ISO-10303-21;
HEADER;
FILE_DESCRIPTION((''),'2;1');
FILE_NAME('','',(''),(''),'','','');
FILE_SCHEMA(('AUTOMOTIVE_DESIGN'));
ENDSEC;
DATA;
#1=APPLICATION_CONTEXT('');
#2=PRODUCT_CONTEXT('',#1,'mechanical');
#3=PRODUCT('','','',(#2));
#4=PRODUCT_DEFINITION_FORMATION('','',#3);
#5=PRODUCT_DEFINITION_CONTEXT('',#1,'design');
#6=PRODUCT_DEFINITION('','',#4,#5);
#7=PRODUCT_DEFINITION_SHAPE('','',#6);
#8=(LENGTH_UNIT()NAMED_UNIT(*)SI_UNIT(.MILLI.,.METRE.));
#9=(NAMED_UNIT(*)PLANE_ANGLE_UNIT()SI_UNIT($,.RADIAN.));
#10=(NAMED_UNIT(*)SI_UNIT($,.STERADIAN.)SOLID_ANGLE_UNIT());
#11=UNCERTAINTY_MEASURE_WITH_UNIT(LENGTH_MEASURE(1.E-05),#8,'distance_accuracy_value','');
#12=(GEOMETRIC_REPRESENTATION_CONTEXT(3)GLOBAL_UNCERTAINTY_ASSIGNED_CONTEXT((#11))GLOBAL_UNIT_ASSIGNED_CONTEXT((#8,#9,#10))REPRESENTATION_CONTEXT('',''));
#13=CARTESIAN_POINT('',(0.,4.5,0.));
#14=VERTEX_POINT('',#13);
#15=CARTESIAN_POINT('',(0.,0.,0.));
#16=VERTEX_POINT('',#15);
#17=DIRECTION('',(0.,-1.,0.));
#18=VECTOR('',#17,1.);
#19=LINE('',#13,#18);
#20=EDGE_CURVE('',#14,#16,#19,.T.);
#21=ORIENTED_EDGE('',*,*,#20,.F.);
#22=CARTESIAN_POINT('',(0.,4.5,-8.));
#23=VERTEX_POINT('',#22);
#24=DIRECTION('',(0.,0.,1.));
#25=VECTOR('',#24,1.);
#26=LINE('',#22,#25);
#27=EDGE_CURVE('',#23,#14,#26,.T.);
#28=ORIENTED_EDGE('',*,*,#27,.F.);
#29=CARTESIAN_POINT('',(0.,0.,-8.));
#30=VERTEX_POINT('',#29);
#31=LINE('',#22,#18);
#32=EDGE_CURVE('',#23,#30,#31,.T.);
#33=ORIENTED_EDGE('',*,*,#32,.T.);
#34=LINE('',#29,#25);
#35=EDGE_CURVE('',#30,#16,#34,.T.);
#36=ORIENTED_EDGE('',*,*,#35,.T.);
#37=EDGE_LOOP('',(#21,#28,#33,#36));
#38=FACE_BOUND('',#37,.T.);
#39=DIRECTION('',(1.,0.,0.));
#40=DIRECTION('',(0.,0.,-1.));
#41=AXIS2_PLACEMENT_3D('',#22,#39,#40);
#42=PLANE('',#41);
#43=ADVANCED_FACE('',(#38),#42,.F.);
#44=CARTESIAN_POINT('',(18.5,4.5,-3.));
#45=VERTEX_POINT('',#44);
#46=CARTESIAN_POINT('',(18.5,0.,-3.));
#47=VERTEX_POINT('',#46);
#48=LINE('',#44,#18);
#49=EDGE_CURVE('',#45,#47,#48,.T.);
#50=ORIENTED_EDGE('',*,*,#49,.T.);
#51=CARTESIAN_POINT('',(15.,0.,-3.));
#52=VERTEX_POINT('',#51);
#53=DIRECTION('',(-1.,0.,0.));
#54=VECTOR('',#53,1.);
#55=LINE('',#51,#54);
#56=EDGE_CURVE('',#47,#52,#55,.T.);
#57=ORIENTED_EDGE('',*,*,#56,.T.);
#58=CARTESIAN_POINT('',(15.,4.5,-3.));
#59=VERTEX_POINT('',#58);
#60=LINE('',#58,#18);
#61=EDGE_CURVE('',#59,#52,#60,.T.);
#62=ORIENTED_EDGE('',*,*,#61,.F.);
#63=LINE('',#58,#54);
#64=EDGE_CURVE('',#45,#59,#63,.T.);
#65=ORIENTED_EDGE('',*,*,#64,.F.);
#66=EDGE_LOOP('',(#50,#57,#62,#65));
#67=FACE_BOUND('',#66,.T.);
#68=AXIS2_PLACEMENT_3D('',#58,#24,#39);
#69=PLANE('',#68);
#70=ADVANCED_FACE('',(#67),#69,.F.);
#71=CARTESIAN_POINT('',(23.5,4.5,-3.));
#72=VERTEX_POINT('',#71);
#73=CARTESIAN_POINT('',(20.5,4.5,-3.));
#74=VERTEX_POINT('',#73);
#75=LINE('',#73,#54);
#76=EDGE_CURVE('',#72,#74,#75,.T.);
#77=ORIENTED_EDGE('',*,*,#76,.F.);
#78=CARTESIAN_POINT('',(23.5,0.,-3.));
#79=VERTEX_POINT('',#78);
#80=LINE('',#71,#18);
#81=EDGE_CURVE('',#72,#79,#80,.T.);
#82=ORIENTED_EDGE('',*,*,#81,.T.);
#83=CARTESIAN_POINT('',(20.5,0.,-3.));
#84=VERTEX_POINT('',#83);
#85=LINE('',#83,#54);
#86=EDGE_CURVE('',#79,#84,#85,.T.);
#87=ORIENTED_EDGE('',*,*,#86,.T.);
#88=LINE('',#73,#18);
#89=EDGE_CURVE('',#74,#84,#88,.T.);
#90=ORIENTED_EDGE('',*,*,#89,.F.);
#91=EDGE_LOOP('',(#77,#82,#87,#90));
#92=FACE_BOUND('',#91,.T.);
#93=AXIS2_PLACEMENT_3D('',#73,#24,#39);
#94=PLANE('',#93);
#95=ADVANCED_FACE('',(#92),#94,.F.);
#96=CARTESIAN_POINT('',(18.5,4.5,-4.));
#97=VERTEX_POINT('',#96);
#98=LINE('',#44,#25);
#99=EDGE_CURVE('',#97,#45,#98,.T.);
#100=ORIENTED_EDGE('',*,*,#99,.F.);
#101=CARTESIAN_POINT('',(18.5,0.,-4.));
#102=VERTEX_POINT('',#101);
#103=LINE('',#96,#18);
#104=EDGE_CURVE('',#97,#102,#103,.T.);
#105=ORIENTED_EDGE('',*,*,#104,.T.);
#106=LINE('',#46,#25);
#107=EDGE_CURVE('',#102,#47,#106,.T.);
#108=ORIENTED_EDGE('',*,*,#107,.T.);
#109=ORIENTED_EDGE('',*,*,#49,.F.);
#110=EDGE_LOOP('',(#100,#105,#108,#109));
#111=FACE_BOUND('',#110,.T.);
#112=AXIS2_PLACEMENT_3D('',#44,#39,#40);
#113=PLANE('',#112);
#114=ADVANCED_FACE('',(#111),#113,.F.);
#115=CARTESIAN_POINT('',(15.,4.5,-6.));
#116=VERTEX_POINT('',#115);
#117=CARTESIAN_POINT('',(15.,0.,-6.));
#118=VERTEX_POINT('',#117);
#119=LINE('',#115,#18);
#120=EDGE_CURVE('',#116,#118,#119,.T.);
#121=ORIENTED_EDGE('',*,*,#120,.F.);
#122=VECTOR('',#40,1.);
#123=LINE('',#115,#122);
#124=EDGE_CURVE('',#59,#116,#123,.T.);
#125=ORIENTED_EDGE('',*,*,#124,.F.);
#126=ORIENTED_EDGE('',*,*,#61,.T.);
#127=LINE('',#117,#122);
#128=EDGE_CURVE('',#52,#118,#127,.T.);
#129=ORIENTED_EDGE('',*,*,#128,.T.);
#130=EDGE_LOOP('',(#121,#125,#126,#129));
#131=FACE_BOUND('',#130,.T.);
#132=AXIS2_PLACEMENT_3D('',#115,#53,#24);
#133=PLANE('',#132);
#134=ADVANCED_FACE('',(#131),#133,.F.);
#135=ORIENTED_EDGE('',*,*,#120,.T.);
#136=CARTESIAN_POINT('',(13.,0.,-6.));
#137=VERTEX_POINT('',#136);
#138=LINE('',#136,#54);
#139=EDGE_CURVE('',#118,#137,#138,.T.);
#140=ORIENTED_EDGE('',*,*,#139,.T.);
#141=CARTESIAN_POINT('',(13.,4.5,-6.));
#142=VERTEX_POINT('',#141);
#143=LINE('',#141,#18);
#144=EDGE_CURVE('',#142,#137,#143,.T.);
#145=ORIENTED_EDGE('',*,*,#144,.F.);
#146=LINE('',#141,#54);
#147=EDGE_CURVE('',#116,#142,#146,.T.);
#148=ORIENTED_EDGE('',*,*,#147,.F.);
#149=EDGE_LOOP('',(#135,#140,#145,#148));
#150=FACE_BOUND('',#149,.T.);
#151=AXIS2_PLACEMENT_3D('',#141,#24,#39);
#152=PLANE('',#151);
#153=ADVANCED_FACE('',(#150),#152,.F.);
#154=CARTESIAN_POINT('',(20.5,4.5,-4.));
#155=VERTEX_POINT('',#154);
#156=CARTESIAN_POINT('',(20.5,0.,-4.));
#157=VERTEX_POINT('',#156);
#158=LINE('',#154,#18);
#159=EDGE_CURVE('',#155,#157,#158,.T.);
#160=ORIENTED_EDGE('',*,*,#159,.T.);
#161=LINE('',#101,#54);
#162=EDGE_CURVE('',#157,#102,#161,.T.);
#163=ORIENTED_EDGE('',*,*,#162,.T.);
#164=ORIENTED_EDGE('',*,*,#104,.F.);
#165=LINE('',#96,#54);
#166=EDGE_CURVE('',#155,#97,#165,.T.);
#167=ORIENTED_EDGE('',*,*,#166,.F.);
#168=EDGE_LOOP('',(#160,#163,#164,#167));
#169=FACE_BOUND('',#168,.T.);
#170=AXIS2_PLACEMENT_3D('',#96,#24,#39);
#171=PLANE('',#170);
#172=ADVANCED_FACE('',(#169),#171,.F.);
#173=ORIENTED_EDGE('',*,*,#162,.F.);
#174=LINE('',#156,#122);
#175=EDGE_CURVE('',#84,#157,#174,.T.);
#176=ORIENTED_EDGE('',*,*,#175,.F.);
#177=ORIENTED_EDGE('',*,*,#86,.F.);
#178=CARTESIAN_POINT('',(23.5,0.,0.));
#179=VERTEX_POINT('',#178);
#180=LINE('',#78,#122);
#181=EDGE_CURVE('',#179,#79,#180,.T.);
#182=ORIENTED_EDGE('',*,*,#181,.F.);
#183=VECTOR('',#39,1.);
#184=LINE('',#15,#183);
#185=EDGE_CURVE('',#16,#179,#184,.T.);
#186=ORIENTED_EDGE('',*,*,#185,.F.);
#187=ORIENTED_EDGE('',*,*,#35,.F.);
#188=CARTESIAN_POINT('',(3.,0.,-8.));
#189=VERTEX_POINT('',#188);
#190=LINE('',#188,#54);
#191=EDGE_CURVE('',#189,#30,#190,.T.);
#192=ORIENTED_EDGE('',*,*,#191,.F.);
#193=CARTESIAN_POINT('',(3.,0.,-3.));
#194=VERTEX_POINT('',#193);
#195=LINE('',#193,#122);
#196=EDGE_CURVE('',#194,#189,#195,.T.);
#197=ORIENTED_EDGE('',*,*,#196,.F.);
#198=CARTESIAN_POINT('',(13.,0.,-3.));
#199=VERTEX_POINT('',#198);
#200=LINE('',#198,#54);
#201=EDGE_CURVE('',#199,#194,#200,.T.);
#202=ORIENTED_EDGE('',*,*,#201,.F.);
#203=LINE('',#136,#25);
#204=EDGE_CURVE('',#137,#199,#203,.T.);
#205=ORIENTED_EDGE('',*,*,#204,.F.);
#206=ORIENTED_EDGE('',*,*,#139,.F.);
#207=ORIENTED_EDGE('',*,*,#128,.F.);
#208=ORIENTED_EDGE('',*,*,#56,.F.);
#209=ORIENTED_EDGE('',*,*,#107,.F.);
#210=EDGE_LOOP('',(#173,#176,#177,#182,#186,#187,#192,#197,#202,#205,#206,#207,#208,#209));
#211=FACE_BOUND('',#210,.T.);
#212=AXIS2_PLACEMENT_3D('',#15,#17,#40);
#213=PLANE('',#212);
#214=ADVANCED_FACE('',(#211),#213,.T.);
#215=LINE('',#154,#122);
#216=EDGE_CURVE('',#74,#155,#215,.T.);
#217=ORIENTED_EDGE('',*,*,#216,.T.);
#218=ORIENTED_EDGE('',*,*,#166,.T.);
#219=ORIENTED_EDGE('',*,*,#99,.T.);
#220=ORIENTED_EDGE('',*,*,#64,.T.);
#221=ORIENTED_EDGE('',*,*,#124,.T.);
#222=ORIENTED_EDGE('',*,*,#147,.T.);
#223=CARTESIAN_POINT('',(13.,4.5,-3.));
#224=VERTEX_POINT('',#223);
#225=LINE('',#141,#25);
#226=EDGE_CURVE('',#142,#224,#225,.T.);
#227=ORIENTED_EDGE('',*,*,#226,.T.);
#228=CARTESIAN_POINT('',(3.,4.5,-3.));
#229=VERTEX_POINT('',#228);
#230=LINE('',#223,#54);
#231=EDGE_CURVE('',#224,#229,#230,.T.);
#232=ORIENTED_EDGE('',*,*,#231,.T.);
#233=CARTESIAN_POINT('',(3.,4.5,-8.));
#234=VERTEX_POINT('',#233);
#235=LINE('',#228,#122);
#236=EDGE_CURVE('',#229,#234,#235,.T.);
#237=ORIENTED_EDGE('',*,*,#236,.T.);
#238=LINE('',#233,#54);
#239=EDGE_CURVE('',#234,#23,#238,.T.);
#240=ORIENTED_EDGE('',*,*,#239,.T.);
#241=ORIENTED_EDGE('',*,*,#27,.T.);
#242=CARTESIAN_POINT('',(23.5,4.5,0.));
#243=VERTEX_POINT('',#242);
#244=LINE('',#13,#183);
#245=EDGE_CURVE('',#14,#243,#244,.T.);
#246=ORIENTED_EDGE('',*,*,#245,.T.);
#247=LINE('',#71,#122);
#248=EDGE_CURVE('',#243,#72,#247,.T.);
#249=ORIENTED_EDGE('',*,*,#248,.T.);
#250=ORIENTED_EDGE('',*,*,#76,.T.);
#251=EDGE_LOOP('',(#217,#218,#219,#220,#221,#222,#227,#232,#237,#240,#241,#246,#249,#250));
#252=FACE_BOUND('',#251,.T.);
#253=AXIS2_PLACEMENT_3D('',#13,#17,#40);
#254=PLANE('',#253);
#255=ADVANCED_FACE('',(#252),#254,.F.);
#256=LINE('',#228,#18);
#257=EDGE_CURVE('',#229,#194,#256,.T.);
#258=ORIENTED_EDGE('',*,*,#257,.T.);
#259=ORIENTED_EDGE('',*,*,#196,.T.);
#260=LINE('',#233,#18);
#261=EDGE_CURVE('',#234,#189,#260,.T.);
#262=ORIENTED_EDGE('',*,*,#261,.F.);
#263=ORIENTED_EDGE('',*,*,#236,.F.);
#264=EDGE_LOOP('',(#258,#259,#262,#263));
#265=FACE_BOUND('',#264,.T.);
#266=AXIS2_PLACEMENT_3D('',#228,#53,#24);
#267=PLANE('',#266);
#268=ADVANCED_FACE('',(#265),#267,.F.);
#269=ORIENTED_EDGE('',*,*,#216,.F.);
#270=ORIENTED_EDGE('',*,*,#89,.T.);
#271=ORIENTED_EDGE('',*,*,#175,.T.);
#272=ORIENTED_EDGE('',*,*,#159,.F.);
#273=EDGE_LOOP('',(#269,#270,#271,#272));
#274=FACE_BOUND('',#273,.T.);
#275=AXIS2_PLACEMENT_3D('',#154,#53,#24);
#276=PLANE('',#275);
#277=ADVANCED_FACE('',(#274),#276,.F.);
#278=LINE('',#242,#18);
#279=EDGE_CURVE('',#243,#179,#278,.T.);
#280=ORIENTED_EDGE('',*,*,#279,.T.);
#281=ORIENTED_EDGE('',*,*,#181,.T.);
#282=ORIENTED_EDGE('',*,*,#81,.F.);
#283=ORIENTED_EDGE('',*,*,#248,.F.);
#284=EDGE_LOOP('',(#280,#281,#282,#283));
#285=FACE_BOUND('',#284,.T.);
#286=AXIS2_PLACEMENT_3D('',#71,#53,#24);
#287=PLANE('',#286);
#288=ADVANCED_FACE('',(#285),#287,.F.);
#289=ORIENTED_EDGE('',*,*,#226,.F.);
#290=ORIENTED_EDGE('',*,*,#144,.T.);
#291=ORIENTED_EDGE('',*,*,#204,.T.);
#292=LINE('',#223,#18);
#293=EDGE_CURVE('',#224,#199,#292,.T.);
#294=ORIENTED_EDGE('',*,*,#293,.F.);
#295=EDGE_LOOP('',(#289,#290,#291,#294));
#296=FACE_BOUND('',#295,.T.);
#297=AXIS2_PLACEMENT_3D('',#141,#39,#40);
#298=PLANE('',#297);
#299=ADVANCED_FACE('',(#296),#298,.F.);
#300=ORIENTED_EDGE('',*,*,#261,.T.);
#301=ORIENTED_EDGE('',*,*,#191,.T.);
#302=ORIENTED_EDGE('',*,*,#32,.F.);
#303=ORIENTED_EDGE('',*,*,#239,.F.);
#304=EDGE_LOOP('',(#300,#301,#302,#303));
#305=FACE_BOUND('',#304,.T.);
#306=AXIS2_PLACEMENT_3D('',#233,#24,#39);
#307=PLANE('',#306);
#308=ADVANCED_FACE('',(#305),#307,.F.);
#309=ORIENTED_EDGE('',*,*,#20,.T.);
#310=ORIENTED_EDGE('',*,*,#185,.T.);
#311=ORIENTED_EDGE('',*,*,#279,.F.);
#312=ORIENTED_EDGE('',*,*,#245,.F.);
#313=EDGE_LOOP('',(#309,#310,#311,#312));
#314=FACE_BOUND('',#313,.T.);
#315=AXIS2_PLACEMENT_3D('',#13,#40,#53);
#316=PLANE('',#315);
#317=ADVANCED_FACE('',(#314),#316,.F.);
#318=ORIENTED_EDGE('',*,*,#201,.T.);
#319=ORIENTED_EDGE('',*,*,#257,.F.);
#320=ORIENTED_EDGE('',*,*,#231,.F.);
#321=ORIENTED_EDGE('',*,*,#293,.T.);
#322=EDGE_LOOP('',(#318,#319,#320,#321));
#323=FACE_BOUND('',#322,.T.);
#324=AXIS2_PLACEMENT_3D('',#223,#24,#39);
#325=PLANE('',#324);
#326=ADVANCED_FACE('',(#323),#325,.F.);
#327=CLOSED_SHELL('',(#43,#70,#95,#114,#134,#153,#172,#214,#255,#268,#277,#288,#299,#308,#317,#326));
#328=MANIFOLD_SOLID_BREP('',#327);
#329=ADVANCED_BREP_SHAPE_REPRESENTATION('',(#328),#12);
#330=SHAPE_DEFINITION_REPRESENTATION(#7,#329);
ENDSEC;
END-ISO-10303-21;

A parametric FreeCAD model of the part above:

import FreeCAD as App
import Part
import Sketcher

V = App.Vector


def add_polygon(sketch, points):
    """Adds a closed chain of lines whose ends are joined by coincident constraints."""
    first, n = sketch.GeometryCount, len(points)
    for a, b in zip(points, points[1:] + points[:1]):
        sketch.addGeometry(Part.LineSegment(App.Vector(*a, 0), App.Vector(*b, 0)), False)
    for i in range(n):
        sketch.addConstraint(Sketcher.Constraint("Coincident", first + i, 2, first + (i + 1) % n, 1))

doc = App.newDocument("Part")
body = doc.addObject("PartDesign::Body", "Body")

# Sketch on XZ plane
sketch1 = doc.addObject("Sketcher::SketchObject", "Sketch")
body.addObject(sketch1)
sketch1.AttachmentSupport = (doc.XZ_Plane, [""])
sketch1.MapMode = "FlatFace"
add_polygon(sketch1, [(13, -6), (13, -3), (3, -3), (3, -8), (0, -8), (0, 0), (23.5, 0), (23.5, -3), (20.5, -3), (20.5, -4), (18.5, -4), (18.5, -3), (15, -3), (15, -6)])  # lines 0-13
sketch1.addConstraint([
    Sketcher.Constraint("Vertical", 0),
    Sketcher.Constraint("Horizontal", 1),
    Sketcher.Constraint("Vertical", 2),
    Sketcher.Constraint("Horizontal", 3),
    Sketcher.Constraint("Vertical", 4),
    Sketcher.Constraint("Horizontal", 5),
    Sketcher.Constraint("Vertical", 6),
    Sketcher.Constraint("Horizontal", 7),
    Sketcher.Constraint("Vertical", 8),
    Sketcher.Constraint("Horizontal", 9),
    Sketcher.Constraint("Vertical", 10),
    Sketcher.Constraint("Horizontal", 11),
    Sketcher.Constraint("Vertical", 12),
    Sketcher.Constraint("Horizontal", 13),
    Sketcher.Constraint("Coincident", 4, 2, -1, 1),
    Sketcher.Constraint("Horizontal", 1, 2, 6, 2),
    Sketcher.Constraint("Horizontal", 7, 2, 10, 2),
    Sketcher.Constraint("Equal", 3, 7),
    Sketcher.Constraint("Equal", 9, 13),
    Sketcher.Constraint("Equal", 7, 0),
    Sketcher.Constraint("Equal", 0, 6),
    Sketcher.Constraint("DistanceX", 1, 2, 1, 1, 10.0),
    Sketcher.Constraint("DistanceX", 3, 2, 3, 1, 3.0),
    Sketcher.Constraint("DistanceX", 9, 2, 9, 1, 2.0),
    Sketcher.Constraint("DistanceY", 2, 2, 2, 1, 5.0),
    Sketcher.Constraint("DistanceY", 8, 2, 8, 1, 1.0),
    Sketcher.Constraint("DistanceX", 5, 1, 5, 2, 23.5),
])
pad1 = doc.addObject("PartDesign::Pad", "Pad")
body.addObject(pad1)
pad1.Profile = sketch1
pad1.Length = 4.5
pad1.Reversed = True

doc.recompute()
